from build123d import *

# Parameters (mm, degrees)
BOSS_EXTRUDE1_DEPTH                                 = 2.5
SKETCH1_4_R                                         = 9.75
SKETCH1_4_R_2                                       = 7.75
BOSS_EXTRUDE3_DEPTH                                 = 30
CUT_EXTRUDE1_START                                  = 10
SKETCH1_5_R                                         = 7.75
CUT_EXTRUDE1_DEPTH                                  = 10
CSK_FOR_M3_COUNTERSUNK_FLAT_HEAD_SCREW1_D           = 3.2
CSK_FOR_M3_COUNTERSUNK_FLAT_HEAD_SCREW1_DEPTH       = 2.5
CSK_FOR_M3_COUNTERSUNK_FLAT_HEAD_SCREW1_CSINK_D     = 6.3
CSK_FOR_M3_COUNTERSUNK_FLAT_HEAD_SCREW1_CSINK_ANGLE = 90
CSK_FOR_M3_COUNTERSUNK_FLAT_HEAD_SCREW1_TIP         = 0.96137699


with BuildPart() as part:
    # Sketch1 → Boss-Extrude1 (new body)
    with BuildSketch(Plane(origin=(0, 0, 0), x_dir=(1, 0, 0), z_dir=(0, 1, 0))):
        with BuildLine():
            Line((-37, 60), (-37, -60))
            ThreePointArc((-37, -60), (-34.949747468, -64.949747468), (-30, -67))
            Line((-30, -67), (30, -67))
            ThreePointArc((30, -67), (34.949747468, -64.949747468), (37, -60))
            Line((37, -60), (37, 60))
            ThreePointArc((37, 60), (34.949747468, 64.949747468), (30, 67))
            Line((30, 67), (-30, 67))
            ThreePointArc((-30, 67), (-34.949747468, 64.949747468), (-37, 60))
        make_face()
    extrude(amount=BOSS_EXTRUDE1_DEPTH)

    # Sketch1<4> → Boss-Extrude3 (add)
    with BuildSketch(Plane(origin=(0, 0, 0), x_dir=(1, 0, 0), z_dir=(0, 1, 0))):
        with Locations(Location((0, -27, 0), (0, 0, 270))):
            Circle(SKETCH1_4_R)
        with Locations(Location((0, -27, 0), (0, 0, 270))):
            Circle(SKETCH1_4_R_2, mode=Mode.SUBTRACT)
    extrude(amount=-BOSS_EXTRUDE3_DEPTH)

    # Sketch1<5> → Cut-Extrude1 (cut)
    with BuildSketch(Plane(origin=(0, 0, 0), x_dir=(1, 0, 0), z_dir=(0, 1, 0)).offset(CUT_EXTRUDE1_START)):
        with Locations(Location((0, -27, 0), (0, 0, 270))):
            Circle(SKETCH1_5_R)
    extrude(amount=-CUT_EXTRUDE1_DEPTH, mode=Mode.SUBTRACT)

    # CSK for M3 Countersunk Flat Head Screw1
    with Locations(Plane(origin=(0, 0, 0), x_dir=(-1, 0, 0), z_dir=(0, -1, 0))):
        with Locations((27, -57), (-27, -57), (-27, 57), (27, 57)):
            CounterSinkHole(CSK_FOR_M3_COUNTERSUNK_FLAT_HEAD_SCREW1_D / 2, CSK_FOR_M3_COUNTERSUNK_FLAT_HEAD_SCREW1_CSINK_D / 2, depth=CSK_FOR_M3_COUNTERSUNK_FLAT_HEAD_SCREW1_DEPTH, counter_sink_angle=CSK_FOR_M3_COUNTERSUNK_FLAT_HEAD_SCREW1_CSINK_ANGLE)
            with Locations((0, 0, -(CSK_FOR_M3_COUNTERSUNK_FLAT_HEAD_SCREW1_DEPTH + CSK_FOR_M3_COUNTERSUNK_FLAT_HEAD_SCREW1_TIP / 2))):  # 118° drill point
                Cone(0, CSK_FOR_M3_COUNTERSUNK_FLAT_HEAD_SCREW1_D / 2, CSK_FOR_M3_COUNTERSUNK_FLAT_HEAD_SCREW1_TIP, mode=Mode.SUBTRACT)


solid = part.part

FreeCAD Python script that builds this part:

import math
import FreeCAD as App
import Part
import Sketcher

doc = App.newDocument("Part")
body = doc.addObject("PartDesign::Body", "Body")

# Sketch on XZ plane
sketch1 = doc.addObject("Sketcher::SketchObject", "Sketch")
body.addObject(sketch1)
sketch1.AttachmentSupport = (doc.XZ_Plane, [""])
sketch1.MapMode = "FlatFace"
sketch1.addGeometry([
    Part.LineSegment(App.Vector(-37, -60, 0), App.Vector(-37, 60, 0)),  # 0
    Part.ArcOfCircle(Part.Circle(App.Vector(-30, 60, 0), App.Vector(0, 0, 1), 7), math.radians(90), math.radians(180)),  # 1
    Part.LineSegment(App.Vector(-30, 67, 0), App.Vector(30, 67, 0)),  # 2
    Part.ArcOfCircle(Part.Circle(App.Vector(30, 60, 0), App.Vector(0, 0, 1), 7), math.radians(0), math.radians(90)),  # 3
    Part.LineSegment(App.Vector(37, 60, 0), App.Vector(37, -60, 0)),  # 4
    Part.ArcOfCircle(Part.Circle(App.Vector(30, -60, 0), App.Vector(0, 0, 1), 7), math.radians(-90), math.radians(0)),  # 5
    Part.LineSegment(App.Vector(30, -67, 0), App.Vector(-30, -67, 0)),  # 6
    Part.ArcOfCircle(Part.Circle(App.Vector(-30, -60, 0), App.Vector(0, 0, 1), 7), math.radians(-180), math.radians(-90)),  # 7
], False)
sketch1.addConstraint([
    Sketcher.Constraint("Tangent", 0, 2, 1, 2),
    Sketcher.Constraint("Tangent", 1, 1, 2, 1),
    Sketcher.Constraint("Tangent", 2, 2, 3, 2),
    Sketcher.Constraint("Tangent", 3, 1, 4, 1),
    Sketcher.Constraint("Tangent", 4, 2, 5, 2),
    Sketcher.Constraint("Tangent", 5, 1, 6, 1),
    Sketcher.Constraint("Tangent", 6, 2, 7, 2),
    Sketcher.Constraint("Tangent", 7, 1, 0, 1),
    Sketcher.Constraint("Vertical", 0),
    Sketcher.Constraint("Horizontal", 2),
    Sketcher.Constraint("Vertical", 4),
    Sketcher.Constraint("Horizontal", 6),
    Sketcher.Constraint("Equal", 1, 3),
    Sketcher.Constraint("Equal", 3, 5),
    Sketcher.Constraint("Equal", 5, 7),
    Sketcher.Constraint("Symmetric", 1, 3, 5, 3, -1, 1),
    Sketcher.Constraint("Radius", 1, 7.0),
    Sketcher.Constraint("DistanceX", 2, 1, 2, 2, 60.0),
    Sketcher.Constraint("DistanceY", 0, 1, 0, 2, 120.0),
])
pad1 = doc.addObject("PartDesign::Pad", "Pad")
body.addObject(pad1)
pad1.Profile = sketch1
pad1.Length = 2.5
pad1.Reversed = True

# Sketch on XZ plane
sketch2 = doc.addObject("Sketcher::SketchObject", "Sketch001")
body.addObject(sketch2)
sketch2.AttachmentSupport = (doc.XZ_Plane, [""])
sketch2.MapMode = "FlatFace"
sketch2.addGeometry([
    Part.Circle(App.Vector(0, 27, 0), App.Vector(0, 0, 1), 10),
    Part.Circle(App.Vector(0, 27, 0), App.Vector(0, 0, 1), 8),
], False)
sketch2.addConstraint([
    Sketcher.Constraint("Coincident", 1, 3, 0, 3),
    Sketcher.Constraint("PointOnObject", 0, 3, -2),
    Sketcher.Constraint("Diameter", 0, 19.5),
    Sketcher.Constraint("Diameter", 1, 15.5),
    Sketcher.Constraint("DistanceY", -1, 1, 0, 3, 27.0),
])
pad2 = doc.addObject("PartDesign::Pad", "Pad001")
body.addObject(pad2)
pad2.Profile = sketch2
pad2.Length = 30

# Sketch on XZ plane
sketch3 = doc.addObject("Sketcher::SketchObject", "Sketch002")
body.addObject(sketch3)
sketch3.AttachmentSupport = (doc.XZ_Plane, [""])
sketch3.MapMode = "FlatFace"
sketch3.AttachmentOffset = App.Placement(App.Vector(0, 0, -10), App.Rotation())
sketch3.addGeometry(Part.Circle(App.Vector(0, 27, 0), App.Vector(0, 0, 1), 8), False)
sketch3.addConstraint([
    Sketcher.Constraint("PointOnObject", 0, 3, -2),
    Sketcher.Constraint("Diameter", 0, 15.5),
    Sketcher.Constraint("DistanceY", -1, 1, 0, 3, 27.0),
])
pocket1 = doc.addObject("PartDesign::Pocket", "Pocket")
body.addObject(pocket1)
pocket1.Profile = sketch3
pocket1.Length = 10
pocket1.Reversed = True

# Sketch on XZ plane
sketch4 = doc.addObject("Sketcher::SketchObject", "Sketch003")
body.addObject(sketch4)
sketch4.AttachmentSupport = (doc.XZ_Plane, [""])
sketch4.MapMode = "FlatFace"
sketch4.addGeometry([
    Part.Circle(App.Vector(-27, 57, 0), App.Vector(0, 0, 1), 1.6),
    Part.Circle(App.Vector(27, 57, 0), App.Vector(0, 0, 1), 1.6),
    Part.Circle(App.Vector(27, -57, 0), App.Vector(0, 0, 1), 1.6),
    Part.Circle(App.Vector(-27, -57, 0), App.Vector(0, 0, 1), 1.6),
], False)
sketch4.addConstraint([
    Sketcher.Constraint("Equal", 0, 1),
    Sketcher.Constraint("Equal", 1, 2),
    Sketcher.Constraint("Equal", 2, 3),
    Sketcher.Constraint("Symmetric", 0, 3, 2, 3, -1, 1),
    Sketcher.Constraint("Symmetric", 1, 3, 3, 3, -1, 1),
    Sketcher.Constraint("Symmetric", 0, 3, 1, 3, -2),
    Sketcher.Constraint("Diameter", 0, 3.2),
    Sketcher.Constraint("DistanceX", 0, 3, -1, 1, 27.0),
    Sketcher.Constraint("DistanceY", -1, 1, 0, 3, 57.0),
])
doc.recompute()
hole = doc.addObject("PartDesign::Hole", "Hole")
body.addObject(hole)
hole.Profile = sketch4
hole.ThreadType = "None"
hole.Diameter = 3.2
hole.DepthType = "Dimension"
hole.Depth = 2.5
hole.DrillPoint = "Angled"
hole.DrillPointAngle = 118
hole.HoleCutType = "Countersink"
hole.HoleCutDiameter = 6.3
hole.HoleCutCountersinkAngle = 90

doc.recompute()
